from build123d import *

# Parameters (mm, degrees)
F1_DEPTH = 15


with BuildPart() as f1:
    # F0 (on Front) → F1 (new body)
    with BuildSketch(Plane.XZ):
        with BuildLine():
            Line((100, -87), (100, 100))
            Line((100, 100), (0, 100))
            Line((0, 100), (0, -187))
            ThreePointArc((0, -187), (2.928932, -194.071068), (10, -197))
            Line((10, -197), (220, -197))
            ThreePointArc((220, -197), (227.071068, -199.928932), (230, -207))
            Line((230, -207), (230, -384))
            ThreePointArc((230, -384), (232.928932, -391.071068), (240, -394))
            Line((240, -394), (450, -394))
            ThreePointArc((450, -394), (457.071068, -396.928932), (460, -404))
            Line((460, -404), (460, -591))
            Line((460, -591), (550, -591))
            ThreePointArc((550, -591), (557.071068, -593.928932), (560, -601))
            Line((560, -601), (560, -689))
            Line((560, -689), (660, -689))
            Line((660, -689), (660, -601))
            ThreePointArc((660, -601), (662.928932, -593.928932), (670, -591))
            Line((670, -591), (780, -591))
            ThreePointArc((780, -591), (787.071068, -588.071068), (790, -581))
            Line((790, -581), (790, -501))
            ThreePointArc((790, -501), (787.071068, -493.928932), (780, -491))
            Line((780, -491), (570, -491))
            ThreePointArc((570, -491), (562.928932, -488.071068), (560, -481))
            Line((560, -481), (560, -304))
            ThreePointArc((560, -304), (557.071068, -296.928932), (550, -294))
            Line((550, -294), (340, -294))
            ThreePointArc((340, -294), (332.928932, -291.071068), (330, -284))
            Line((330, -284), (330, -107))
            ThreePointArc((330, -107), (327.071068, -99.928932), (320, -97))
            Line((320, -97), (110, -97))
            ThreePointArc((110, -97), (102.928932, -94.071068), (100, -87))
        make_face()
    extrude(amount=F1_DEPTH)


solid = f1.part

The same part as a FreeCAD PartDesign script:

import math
import FreeCAD as App
import Part
import Sketcher
from FreeCAD import Vector

doc = App.newDocument("Part")
body = doc.addObject("PartDesign::Body", "Body")

# Sketch on XZ plane
sketch1 = doc.addObject("Sketcher::SketchObject", "Sketch")
body.addObject(sketch1)
sketch1.AttachmentSupport = (doc.XZ_Plane, [""])
sketch1.MapMode = "FlatFace"
sketch1.addGeometry([
    Part.LineSegment(Vector(100, -87, 0), Vector(100, 100, 0)),  # 0
    Part.LineSegment(Vector(100, 100, 0), Vector(0, 100, 0)),  # 1
    Part.LineSegment(Vector(0, 100, 0), Vector(0, -187, 0)),  # 2
    Part.ArcOfCircle(Part.Circle(Vector(10, -187, 0), Vector(0, 0, 1), 10), math.radians(180), math.radians(270)),  # 3
    Part.LineSegment(Vector(10, -197, 0), Vector(220, -197, 0)),  # 4
    Part.ArcOfCircle(Part.Circle(Vector(220, -207, 0), Vector(0, 0, 1), 10), math.radians(0), math.radians(90)),  # 5
    Part.LineSegment(Vector(230, -207, 0), Vector(230, -384, 0)),  # 6
    Part.ArcOfCircle(Part.Circle(Vector(240, -384, 0), Vector(0, 0, 1), 10), math.radians(180), math.radians(270)),  # 7
    Part.LineSegment(Vector(240, -394, 0), Vector(450, -394, 0)),  # 8
    Part.ArcOfCircle(Part.Circle(Vector(450, -404, 0), Vector(0, 0, 1), 10), math.radians(0), math.radians(90)),  # 9
    Part.LineSegment(Vector(460, -404, 0), Vector(460, -591, 0)),  # 10
    Part.LineSegment(Vector(460, -591, 0), Vector(550, -591, 0)),  # 11
    Part.ArcOfCircle(Part.Circle(Vector(550, -601, 0), Vector(0, 0, 1), 10), math.radians(0), math.radians(90)),  # 12
    Part.LineSegment(Vector(560, -601, 0), Vector(560, -689, 0)),  # 13
    Part.LineSegment(Vector(560, -689, 0), Vector(660, -689, 0)),  # 14
    Part.LineSegment(Vector(660, -689, 0), Vector(660, -601, 0)),  # 15
    Part.ArcOfCircle(Part.Circle(Vector(670, -601, 0), Vector(0, 0, 1), 10), math.radians(90), math.radians(180)),  # 16
    Part.LineSegment(Vector(670, -591, 0), Vector(780, -591, 0)),  # 17
    Part.ArcOfCircle(Part.Circle(Vector(780, -581, 0), Vector(0, 0, 1), 10), math.radians(-90), math.radians(0)),  # 18
    Part.LineSegment(Vector(790, -581, 0), Vector(790, -501, 0)),  # 19
    Part.ArcOfCircle(Part.Circle(Vector(780, -501, 0), Vector(0, 0, 1), 10), math.radians(0), math.radians(90)),  # 20
    Part.LineSegment(Vector(780, -491, 0), Vector(570, -491, 0)),  # 21
    Part.ArcOfCircle(Part.Circle(Vector(570, -481, 0), Vector(0, 0, 1), 10), math.radians(180), math.radians(270)),  # 22
    Part.LineSegment(Vector(560, -481, 0), Vector(560, -304, 0)),  # 23
    Part.ArcOfCircle(Part.Circle(Vector(550, -304, 0), Vector(0, 0, 1), 10), math.radians(0), math.radians(90)),  # 24
    Part.LineSegment(Vector(550, -294, 0), Vector(340, -294, 0)),  # 25
    Part.ArcOfCircle(Part.Circle(Vector(340, -284, 0), Vector(0, 0, 1), 10), math.radians(180), math.radians(270)),  # 26
    Part.LineSegment(Vector(330, -284, 0), Vector(330, -107, 0)),  # 27
    Part.ArcOfCircle(Part.Circle(Vector(320, -107, 0), Vector(0, 0, 1), 10), math.radians(0), math.radians(90)),  # 28
    Part.LineSegment(Vector(320, -97, 0), Vector(110, -97, 0)),  # 29
    Part.ArcOfCircle(Part.Circle(Vector(110, -87, 0), Vector(0, 0, 1), 10), math.radians(180), math.radians(270)),  # 30
], False)
sketch1.addConstraint([
    Sketcher.Constraint("Coincident", 0, 2, 1, 1),
    Sketcher.Constraint("Coincident", 1, 2, 2, 1),
    Sketcher.Constraint("Tangent", 2, 2, 3, 1),
    Sketcher.Constraint("Tangent", 3, 2, 4, 1),
    Sketcher.Constraint("Tangent", 4, 2, 5, 2),
    Sketcher.Constraint("Tangent", 5, 1, 6, 1),
    Sketcher.Constraint("Tangent", 6, 2, 7, 1),
    Sketcher.Constraint("Tangent", 7, 2, 8, 1),
    Sketcher.Constraint("Tangent", 8, 2, 9, 2),
    Sketcher.Constraint("Tangent", 9, 1, 10, 1),
    Sketcher.Constraint("Coincident", 10, 2, 11, 1),
    Sketcher.Constraint("Tangent", 11, 2, 12, 2),
    Sketcher.Constraint("Tangent", 12, 1, 13, 1),
    Sketcher.Constraint("Coincident", 13, 2, 14, 1),
    Sketcher.Constraint("Coincident", 14, 2, 15, 1),
    Sketcher.Constraint("Tangent", 15, 2, 16, 2),
    Sketcher.Constraint("Tangent", 16, 1, 17, 1),
    Sketcher.Constraint("Tangent", 17, 2, 18, 1),
    Sketcher.Constraint("Tangent", 18, 2, 19, 1),
    Sketcher.Constraint("Tangent", 19, 2, 20, 1),
    Sketcher.Constraint("Tangent", 20, 2, 21, 1),
    Sketcher.Constraint("Tangent", 21, 2, 22, 2),
    Sketcher.Constraint("Tangent", 22, 1, 23, 1),
    Sketcher.Constraint("Tangent", 23, 2, 24, 1),
    Sketcher.Constraint("Tangent", 24, 2, 25, 1),
    Sketcher.Constraint("Tangent", 25, 2, 26, 2),
    Sketcher.Constraint("Tangent", 26, 1, 27, 1),
    Sketcher.Constraint("Tangent", 27, 2, 28, 1),
    Sketcher.Constraint("Tangent", 28, 2, 29, 1),
    Sketcher.Constraint("Tangent", 29, 2, 30, 2),
    Sketcher.Constraint("Tangent", 30, 1, 0, 1),
    Sketcher.Constraint("Vertical", 0),
    Sketcher.Constraint("Horizontal", 1),
    Sketcher.Constraint("Vertical", 2),
    Sketcher.Constraint("Horizontal", 4),
    Sketcher.Constraint("Vertical", 6),
    Sketcher.Constraint("Horizontal", 8),
    Sketcher.Constraint("Vertical", 10),
    Sketcher.Constraint("Horizontal", 11),
    Sketcher.Constraint("Vertical", 13),
    Sketcher.Constraint("Horizontal", 14),
    Sketcher.Constraint("Vertical", 15),
    Sketcher.Constraint("Horizontal", 17),
    Sketcher.Constraint("Vertical", 19),
    Sketcher.Constraint("Horizontal", 21),
    Sketcher.Constraint("Vertical", 23),
    Sketcher.Constraint("Horizontal", 25),
    Sketcher.Constraint("Vertical", 27),
    Sketcher.Constraint("Horizontal", 29),
    Sketcher.Constraint("Equal", 3, 5),
    Sketcher.Constraint("Equal", 5, 7),
    Sketcher.Constraint("Equal", 7, 9),
    Sketcher.Constraint("Equal", 9, 12),
    Sketcher.Constraint("Equal", 12, 16),
    Sketcher.Constraint("Equal", 16, 18),
    Sketcher.Constraint("Equal", 18, 20),
    Sketcher.Constraint("Equal", 20, 22),
    Sketcher.Constraint("Equal", 22, 24),
    Sketcher.Constraint("Equal", 24, 26),
    Sketcher.Constraint("Equal", 26, 28),
    Sketcher.Constraint("Equal", 28, 30),
    Sketcher.Constraint("PointOnObject", 1, 2, -2),
    Sketcher.Constraint("Horizontal", 12, 3, 16, 3),
    Sketcher.Constraint("Vertical", 12, 3, 24, 3),
    Sketcher.Constraint("Equal", 4, 8),
    Sketcher.Constraint("Equal", 1, 14),
    Sketcher.Constraint("Equal", 8, 21),
    Sketcher.Constraint("Equal", 21, 25),
    Sketcher.Constraint("Equal", 25, 29),
    Sketcher.Constraint("Equal", 0, 10),
    Sketcher.Constraint("Equal", 6, 23),
    Sketcher.Constraint("Equal", 23, 27),
    Sketcher.Constraint("Radius", 3, 9.999999),
    Sketcher.Constraint("DistanceX", 1, 2, 1, 1, 100.0),
    Sketcher.Constraint("DistanceX", 4, 1, 4, 2, 210.0),
    Sketcher.Constraint("DistanceY", 0, 1, 0, 2, 187.0),
    Sketcher.Constraint("DistanceY", 2, 2, 2, 1, 287.0),
    Sketcher.Constraint("DistanceY", 6, 2, 6, 1, 177.0),
    Sketcher.Constraint("DistanceY", 13, 2, 13, 1, 88.0),
    Sketcher.Constraint("DistanceY", 3, 3, -1, 1, 187.000001),
])
pad1 = doc.addObject("PartDesign::Pad", "Pad")
body.addObject(pad1)
pad1.Profile = sketch1
pad1.Length = 15

doc.recompute()
